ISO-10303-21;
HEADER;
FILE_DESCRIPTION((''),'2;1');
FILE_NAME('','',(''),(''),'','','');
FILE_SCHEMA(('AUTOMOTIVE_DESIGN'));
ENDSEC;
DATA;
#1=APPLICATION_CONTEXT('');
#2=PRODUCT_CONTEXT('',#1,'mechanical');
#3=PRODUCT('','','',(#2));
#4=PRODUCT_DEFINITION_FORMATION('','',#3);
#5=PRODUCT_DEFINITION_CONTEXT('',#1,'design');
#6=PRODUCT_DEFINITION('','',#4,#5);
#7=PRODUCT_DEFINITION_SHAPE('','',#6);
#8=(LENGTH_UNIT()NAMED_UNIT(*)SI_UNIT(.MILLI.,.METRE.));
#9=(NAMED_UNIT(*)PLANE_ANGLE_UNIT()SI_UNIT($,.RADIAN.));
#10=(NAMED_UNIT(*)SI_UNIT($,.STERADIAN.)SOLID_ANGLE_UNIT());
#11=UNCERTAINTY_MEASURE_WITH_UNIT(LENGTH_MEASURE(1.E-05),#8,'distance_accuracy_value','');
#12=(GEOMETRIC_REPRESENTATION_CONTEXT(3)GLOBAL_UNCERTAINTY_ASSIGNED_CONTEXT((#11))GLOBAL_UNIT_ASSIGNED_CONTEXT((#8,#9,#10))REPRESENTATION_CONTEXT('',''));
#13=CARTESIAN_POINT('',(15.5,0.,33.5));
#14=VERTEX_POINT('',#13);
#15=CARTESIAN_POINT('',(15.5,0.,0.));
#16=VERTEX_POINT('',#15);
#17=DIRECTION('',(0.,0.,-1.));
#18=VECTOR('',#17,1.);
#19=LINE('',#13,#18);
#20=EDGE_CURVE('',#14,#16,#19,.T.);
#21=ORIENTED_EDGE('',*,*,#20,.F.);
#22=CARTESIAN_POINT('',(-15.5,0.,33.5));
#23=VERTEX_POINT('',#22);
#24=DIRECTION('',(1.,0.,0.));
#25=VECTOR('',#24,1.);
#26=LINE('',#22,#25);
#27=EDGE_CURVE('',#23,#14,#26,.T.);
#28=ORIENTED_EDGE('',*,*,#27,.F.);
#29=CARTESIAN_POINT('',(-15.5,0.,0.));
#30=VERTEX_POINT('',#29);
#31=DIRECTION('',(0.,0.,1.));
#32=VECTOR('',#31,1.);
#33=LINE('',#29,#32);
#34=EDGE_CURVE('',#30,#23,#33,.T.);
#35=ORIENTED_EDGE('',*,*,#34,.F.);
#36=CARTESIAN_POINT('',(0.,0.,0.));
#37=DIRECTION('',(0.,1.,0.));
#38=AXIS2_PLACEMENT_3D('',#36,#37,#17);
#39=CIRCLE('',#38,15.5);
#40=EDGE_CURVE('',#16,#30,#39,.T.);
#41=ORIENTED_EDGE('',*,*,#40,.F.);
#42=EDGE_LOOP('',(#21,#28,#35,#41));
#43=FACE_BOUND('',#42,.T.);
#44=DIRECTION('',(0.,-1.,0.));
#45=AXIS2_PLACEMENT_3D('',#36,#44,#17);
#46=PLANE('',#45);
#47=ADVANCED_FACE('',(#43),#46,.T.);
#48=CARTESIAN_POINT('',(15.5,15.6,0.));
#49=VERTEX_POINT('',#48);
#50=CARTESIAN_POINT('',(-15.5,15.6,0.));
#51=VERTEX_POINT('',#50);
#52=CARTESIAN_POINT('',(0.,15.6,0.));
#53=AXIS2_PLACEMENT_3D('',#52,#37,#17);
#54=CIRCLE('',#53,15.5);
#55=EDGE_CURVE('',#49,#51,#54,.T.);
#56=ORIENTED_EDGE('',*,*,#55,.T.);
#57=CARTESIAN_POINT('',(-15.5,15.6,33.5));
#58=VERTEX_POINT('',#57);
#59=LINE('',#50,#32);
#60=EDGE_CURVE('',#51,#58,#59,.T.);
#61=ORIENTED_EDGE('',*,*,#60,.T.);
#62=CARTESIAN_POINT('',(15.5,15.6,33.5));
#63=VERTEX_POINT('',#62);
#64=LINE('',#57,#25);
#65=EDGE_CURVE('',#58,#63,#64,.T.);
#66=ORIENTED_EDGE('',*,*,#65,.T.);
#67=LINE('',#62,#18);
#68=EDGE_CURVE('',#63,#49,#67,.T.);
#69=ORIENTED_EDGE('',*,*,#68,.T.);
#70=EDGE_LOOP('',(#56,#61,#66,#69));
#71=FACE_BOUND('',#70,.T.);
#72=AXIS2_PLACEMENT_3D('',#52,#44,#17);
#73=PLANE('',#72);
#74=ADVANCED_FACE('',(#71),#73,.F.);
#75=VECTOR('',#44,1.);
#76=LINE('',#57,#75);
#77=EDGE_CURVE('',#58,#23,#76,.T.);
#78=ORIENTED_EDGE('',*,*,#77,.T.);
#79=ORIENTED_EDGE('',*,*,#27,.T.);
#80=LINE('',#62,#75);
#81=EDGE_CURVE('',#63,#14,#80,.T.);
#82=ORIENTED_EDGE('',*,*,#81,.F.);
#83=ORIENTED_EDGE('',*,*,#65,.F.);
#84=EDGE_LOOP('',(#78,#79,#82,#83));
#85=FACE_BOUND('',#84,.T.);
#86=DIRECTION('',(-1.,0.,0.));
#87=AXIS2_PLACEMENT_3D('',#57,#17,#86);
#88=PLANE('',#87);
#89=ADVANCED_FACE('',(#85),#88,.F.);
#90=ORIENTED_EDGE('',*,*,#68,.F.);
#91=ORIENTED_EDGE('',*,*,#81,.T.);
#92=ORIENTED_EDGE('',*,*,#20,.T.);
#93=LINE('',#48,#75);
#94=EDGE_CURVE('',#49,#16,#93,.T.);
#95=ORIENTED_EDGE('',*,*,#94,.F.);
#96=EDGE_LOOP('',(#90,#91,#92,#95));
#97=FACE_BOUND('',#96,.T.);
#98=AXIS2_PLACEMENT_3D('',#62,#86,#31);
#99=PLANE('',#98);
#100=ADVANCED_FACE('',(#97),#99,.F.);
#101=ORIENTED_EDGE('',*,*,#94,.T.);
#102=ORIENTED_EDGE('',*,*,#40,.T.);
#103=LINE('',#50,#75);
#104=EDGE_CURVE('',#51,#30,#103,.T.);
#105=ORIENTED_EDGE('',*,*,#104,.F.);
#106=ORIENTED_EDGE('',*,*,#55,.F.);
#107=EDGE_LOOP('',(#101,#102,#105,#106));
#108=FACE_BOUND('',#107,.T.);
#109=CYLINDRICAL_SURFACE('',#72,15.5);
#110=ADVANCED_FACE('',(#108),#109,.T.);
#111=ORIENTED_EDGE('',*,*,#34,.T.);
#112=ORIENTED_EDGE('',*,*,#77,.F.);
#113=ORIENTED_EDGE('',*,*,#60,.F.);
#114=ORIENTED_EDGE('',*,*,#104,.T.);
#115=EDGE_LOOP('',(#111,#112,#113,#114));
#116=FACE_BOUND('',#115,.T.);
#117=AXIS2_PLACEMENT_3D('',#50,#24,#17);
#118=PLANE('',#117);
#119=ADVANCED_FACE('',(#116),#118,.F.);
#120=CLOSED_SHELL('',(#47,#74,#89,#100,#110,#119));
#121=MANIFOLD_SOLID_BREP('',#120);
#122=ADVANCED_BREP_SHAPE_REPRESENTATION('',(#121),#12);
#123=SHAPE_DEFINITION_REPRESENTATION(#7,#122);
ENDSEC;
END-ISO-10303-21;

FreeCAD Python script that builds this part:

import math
import FreeCAD as App
import Part
import Sketcher
Q = App.Units.Quantity

doc = App.newDocument("Part")
params = doc.addObject("Spreadsheet::Sheet", "Params")
for row, (alias, value) in enumerate([
    ("sketch1_radius", "15.5 mm"),
    ("sketch1_height", "33.5 mm"),
    ("pad1_length", "15.6 mm"),
], start=1):
    params.set(f"A{row}", alias)
    params.set(f"B{row}", "=" + value)
    params.setAlias(f"B{row}", alias)

body = doc.addObject("PartDesign::Body", "Body")

sketch1 = body.newObject("Sketcher::SketchObject", "Sketch")
sketch1.AttachmentSupport = (doc.getObject("XZ_Plane"), [""])
sketch1.MapMode = "FlatFace"
sketch1.addGeometry([
    Part.LineSegment(App.Vector(-15.5, 0, 0), App.Vector(-15.5, 33.5, 0)),
    Part.LineSegment(App.Vector(-15.5, 33.5, 0), App.Vector(15.5, 33.5, 0)),
    Part.LineSegment(App.Vector(15.5, 33.5, 0), App.Vector(15.5, 0, 0)),
    Part.ArcOfCircle(Part.Circle(App.Vector(0, 0, 0), App.Vector(0, 0, 1), 15.5), math.radians(180), math.radians(360)),
], False)
sketch1.addConstraint([
    Sketcher.Constraint("Coincident", 0, 2, 1, 1),
    Sketcher.Constraint("Coincident", 1, 2, 2, 1),
    Sketcher.Constraint("Tangent", 2, 2, 3, 2),
    Sketcher.Constraint("Tangent", 3, 1, 0, 1),
    Sketcher.Constraint("Vertical", 0),
    Sketcher.Constraint("Horizontal", 1),
    Sketcher.Constraint("Vertical", 2),
    Sketcher.Constraint("Coincident", 3, 3, -1, 1),
    Sketcher.Constraint("Radius", 3, Q("15.5 mm")),
    Sketcher.Constraint("DistanceY", 0, 1, 0, 2, Q("33.5 mm")),
])
sketch1.setExpression("Constraints[8]", "Params.sketch1_radius")
sketch1.setExpression("Constraints[9]", "Params.sketch1_height")
pad1 = body.newObject("PartDesign::Pad", "Pad")
pad1.Profile = sketch1
pad1.setExpression("Length", "Params.pad1_length")
pad1.Reversed = True

doc.recompute()
